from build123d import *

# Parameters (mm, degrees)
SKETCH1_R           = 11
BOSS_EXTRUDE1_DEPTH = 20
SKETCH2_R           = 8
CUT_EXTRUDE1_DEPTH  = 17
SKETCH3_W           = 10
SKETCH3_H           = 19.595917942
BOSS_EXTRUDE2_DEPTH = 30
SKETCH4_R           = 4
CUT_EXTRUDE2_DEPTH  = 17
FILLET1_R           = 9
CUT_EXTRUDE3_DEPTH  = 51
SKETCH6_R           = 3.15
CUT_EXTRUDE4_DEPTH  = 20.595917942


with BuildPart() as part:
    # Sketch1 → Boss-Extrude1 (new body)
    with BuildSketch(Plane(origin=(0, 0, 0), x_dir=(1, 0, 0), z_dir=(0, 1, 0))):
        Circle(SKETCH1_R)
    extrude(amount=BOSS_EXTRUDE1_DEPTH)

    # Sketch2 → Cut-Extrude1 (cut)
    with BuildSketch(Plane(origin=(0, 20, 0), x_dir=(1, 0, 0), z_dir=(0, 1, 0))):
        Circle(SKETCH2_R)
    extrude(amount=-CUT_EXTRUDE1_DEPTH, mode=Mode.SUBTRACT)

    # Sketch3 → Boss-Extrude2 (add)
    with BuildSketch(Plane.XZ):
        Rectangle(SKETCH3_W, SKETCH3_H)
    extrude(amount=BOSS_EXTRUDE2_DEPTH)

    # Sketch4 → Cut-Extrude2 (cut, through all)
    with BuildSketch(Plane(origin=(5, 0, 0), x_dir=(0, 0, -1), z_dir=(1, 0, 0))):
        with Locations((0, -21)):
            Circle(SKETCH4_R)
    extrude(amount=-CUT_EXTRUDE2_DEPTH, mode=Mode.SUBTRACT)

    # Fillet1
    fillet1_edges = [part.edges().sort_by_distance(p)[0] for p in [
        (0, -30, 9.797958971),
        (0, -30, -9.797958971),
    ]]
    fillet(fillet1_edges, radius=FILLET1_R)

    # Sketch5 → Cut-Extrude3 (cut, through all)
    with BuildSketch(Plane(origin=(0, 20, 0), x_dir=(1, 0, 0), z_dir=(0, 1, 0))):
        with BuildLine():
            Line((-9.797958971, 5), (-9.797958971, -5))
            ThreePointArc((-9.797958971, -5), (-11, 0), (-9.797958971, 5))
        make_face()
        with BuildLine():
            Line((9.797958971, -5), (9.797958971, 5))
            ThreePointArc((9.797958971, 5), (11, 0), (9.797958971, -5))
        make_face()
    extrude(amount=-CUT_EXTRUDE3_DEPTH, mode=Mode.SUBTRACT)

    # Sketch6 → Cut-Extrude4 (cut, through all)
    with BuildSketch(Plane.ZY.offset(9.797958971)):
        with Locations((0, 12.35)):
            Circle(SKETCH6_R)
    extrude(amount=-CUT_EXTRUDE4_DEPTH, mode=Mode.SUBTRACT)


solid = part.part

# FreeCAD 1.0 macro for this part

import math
import FreeCAD as App
import Part
import Sketcher
Q = App.Units.Quantity


def edges_at(feature, points):
    """Names of the edges that pass closest to the given points."""
    edges = feature.Shape.Edges
    near = lambda p: min(range(len(edges)), key=lambda i: edges[i].distToShape(Part.Vertex(*p))[0])
    return sorted({f"Edge{near(p) + 1}" for p in points})


def add_polygon(sketch, points):
    """Adds a closed chain of lines whose ends are joined by coincident constraints."""
    first, n = sketch.GeometryCount, len(points)
    for a, b in zip(points, points[1:] + points[:1]):
        sketch.addGeometry(Part.LineSegment(App.Vector(*a, 0), App.Vector(*b, 0)), False)
    for i in range(n):
        sketch.addConstraint(Sketcher.Constraint("Coincident", first + i, 2, first + (i + 1) % n, 1))

doc = App.newDocument("Part")
body = doc.addObject("PartDesign::Body", "Body")

# Sketch on XZ plane
sketch1 = doc.addObject("Sketcher::SketchObject", "Sketch")
body.addObject(sketch1)
sketch1.AttachmentSupport = (doc.XZ_Plane, [""])
sketch1.MapMode = "FlatFace"
sketch1.addGeometry(Part.Circle(App.Vector(0, 0, 0), App.Vector(0, 0, 1), 11), False)
sketch1.addConstraint(Sketcher.Constraint("Coincident", 0, 3, -1, 1))
sketch1.addConstraint(Sketcher.Constraint("Diameter", 0, Q("22 mm")))
pad1 = doc.addObject("PartDesign::Pad", "Pad")
body.addObject(pad1)
pad1.Profile = sketch1
pad1.Length = 20
pad1.Reversed = True

# Sketch on XZ plane
sketch2 = doc.addObject("Sketcher::SketchObject", "Sketch001")
body.addObject(sketch2)
sketch2.AttachmentSupport = (doc.XZ_Plane, [""])
sketch2.MapMode = "FlatFace"
sketch2.AttachmentOffset = App.Placement(App.Vector(0, 0, -20), App.Rotation())
sketch2.addGeometry(Part.Circle(App.Vector(0, 0, 0), App.Vector(0, 0, 1), 8), False)
sketch2.addConstraint(Sketcher.Constraint("Coincident", 0, 3, -1, 1))
sketch2.addConstraint(Sketcher.Constraint("Diameter", 0, Q("16 mm")))
pocket1 = doc.addObject("PartDesign::Pocket", "Pocket")
body.addObject(pocket1)
pocket1.Profile = sketch2
pocket1.Length = 17
pocket1.Reversed = True

# Sketch on XZ plane
sketch3 = doc.addObject("Sketcher::SketchObject", "Sketch002")
body.addObject(sketch3)
sketch3.AttachmentSupport = (doc.XZ_Plane, [""])
sketch3.MapMode = "FlatFace"
add_polygon(sketch3, [(-5, 10), (-5, -10), (5, -10), (5, 10)])  # lines 0-3
sketch3.addConstraint(Sketcher.Constraint("Vertical", 0))
sketch3.addConstraint(Sketcher.Constraint("Horizontal", 1))
sketch3.addConstraint(Sketcher.Constraint("Vertical", 2))
sketch3.addConstraint(Sketcher.Constraint("Horizontal", 3))
sketch3.addConstraint(Sketcher.Constraint("Symmetric", 0, 2, 2, 2, -1, 1))
sketch3.addConstraint(Sketcher.Constraint("DistanceX", 1, 1, 1, 2, Q("10 mm")))
sketch3.addConstraint(Sketcher.Constraint("DistanceY", 0, 2, 0, 1, Q("19.595918 mm")))
pad2 = doc.addObject("PartDesign::Pad", "Pad001")
body.addObject(pad2)
pad2.Profile = sketch3
pad2.Length = 30

# Sketch on YZ plane
sketch4 = doc.addObject("Sketcher::SketchObject", "Sketch003")
body.addObject(sketch4)
sketch4.AttachmentSupport = (doc.YZ_Plane, [""])
sketch4.MapMode = "FlatFace"
sketch4.AttachmentOffset = App.Placement(App.Vector(0, 0, 5), App.Rotation())
sketch4.addGeometry(Part.Circle(App.Vector(-21, 0, 0), App.Vector(0, 0, 1), 4), False)
sketch4.addConstraint(Sketcher.Constraint("PointOnObject", 0, 3, -1))
sketch4.addConstraint(Sketcher.Constraint("Diameter", 0, Q("8 mm")))
sketch4.addConstraint(Sketcher.Constraint("DistanceX", 0, 3, -1, 1, Q("21 mm")))
pocket2 = doc.addObject("PartDesign::Pocket", "Pocket001")
body.addObject(pocket2)
pocket2.Profile = sketch4
pocket2.Type = "ThroughAll"
doc.recompute()

fillet = doc.addObject("PartDesign::Fillet", "Fillet")
body.addObject(fillet)
fillet.Base = (pocket2, edges_at(pocket2, [(0, -30, 9.798), (0, -30, -9.798)]))
fillet.Radius = 9

# Sketch on XZ plane
sketch5 = doc.addObject("Sketcher::SketchObject", "Sketch004")
body.addObject(sketch5)
sketch5.AttachmentSupport = (doc.XZ_Plane, [""])
sketch5.MapMode = "FlatFace"
sketch5.AttachmentOffset = App.Placement(App.Vector(0, 0, -20), App.Rotation())
sketch5.addGeometry(Part.LineSegment(App.Vector(-10, 5, 0), App.Vector(-10, -5, 0)), False)
sketch5.addGeometry(Part.ArcOfCircle(Part.Circle(App.Vector(0, 0, 0), App.Vector(0, 0, 1), 11), math.radians(153), math.radians(207)), False)
sketch5.addGeometry(Part.LineSegment(App.Vector(10, -5, 0), App.Vector(10, 5, 0)), False)
sketch5.addGeometry(Part.ArcOfCircle(Part.Circle(App.Vector(0, 0, 0), App.Vector(0, 0, 1), 11), math.radians(-27), math.radians(27)), False)
sketch5.addConstraint(Sketcher.Constraint("Coincident", 0, 1, 1, 1))
sketch5.addConstraint(Sketcher.Constraint("Coincident", 1, 2, 0, 2))
sketch5.addConstraint(Sketcher.Constraint("Coincident", 2, 1, 3, 1))
sketch5.addConstraint(Sketcher.Constraint("Coincident", 3, 2, 2, 2))
sketch5.addConstraint(Sketcher.Constraint("Vertical", 0))
sketch5.addConstraint(Sketcher.Constraint("Vertical", 2))
sketch5.addConstraint(Sketcher.Constraint("Coincident", 1, 3, -1, 1))
sketch5.addConstraint(Sketcher.Constraint("Coincident", 3, 3, -1, 1))
sketch5.addConstraint(Sketcher.Constraint("Equal", 1, 3))
sketch5.addConstraint(Sketcher.Constraint("Horizontal", 1, 2, 2, 1))
sketch5.addConstraint(Sketcher.Constraint("Radius", 1, Q("11 mm")))
sketch5.addConstraint(Sketcher.Constraint("DistanceY", 0, 2, 0, 1, Q("10 mm")))
pocket3 = doc.addObject("PartDesign::Pocket", "Pocket002")
body.addObject(pocket3)
pocket3.Profile = sketch5
pocket3.Type = "ThroughAll"
pocket3.Reversed = True

# Sketch on YZ plane
sketch6 = doc.addObject("Sketcher::SketchObject", "Sketch005")
body.addObject(sketch6)
sketch6.AttachmentSupport = (doc.YZ_Plane, [""])
sketch6.MapMode = "FlatFace"
sketch6.AttachmentOffset = App.Placement(App.Vector(0, 0, -9.797959), App.Rotation())
sketch6.addGeometry(Part.Circle(App.Vector(12.3, 0, 0), App.Vector(0, 0, 1), 3.1), False)
sketch6.addConstraint(Sketcher.Constraint("PointOnObject", 0, 3, -1))
sketch6.addConstraint(Sketcher.Constraint("Diameter", 0, Q("6.3 mm")))
sketch6.addConstraint(Sketcher.Constraint("DistanceX", -1, 1, 0, 3, Q("12.35 mm")))
pocket4 = doc.addObject("PartDesign::Pocket", "Pocket003")
body.addObject(pocket4)
pocket4.Profile = sketch6
pocket4.Type = "ThroughAll"
pocket4.Reversed = True

doc.recompute()
